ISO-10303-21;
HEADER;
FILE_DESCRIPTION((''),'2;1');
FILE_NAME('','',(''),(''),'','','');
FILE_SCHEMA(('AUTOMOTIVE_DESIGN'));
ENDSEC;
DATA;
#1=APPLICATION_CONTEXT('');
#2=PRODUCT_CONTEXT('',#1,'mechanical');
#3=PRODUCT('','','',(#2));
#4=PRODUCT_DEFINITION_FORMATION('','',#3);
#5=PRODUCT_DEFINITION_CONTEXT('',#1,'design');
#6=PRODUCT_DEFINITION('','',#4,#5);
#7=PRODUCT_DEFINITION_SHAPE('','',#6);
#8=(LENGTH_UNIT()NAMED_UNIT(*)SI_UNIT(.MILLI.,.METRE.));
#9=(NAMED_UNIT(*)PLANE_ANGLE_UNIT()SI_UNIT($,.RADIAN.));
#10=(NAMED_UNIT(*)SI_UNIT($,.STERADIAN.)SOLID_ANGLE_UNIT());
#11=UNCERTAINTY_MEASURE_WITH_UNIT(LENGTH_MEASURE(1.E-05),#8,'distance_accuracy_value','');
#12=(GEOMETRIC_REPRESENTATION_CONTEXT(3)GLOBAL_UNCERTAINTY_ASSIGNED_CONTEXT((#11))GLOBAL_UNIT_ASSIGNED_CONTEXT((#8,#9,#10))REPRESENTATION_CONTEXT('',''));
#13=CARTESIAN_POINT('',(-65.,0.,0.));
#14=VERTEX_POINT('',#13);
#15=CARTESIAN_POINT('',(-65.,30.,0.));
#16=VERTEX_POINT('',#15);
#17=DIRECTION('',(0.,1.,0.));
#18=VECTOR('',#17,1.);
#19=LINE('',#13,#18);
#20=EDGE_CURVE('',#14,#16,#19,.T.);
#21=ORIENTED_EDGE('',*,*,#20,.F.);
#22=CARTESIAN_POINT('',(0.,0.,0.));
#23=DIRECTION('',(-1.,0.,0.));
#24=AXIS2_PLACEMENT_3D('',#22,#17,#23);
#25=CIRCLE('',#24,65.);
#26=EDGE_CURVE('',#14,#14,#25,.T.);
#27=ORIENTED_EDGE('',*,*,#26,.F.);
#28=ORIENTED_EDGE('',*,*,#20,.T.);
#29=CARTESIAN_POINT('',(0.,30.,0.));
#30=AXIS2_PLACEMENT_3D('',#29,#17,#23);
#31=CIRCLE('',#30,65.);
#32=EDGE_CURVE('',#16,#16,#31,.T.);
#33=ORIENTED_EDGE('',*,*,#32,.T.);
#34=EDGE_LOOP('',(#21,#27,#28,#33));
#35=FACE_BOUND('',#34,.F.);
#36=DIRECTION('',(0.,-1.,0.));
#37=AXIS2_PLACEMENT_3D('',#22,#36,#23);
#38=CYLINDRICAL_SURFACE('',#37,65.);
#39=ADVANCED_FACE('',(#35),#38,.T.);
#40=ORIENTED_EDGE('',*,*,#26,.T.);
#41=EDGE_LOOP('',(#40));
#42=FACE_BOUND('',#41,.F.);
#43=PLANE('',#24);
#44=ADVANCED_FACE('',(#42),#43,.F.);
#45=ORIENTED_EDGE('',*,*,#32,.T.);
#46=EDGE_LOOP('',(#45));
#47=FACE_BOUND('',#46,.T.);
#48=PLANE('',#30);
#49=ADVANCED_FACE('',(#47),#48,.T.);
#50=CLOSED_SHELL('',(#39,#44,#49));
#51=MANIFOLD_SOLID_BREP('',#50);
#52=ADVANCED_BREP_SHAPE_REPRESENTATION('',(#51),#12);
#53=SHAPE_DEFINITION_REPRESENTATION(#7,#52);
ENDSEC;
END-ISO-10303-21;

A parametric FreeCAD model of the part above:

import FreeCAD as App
import Part
import Sketcher
from FreeCAD import Vector

doc = App.newDocument("Part")
params = doc.addObject("Spreadsheet::Sheet", "Params")
for row, (alias, value) in enumerate([
    ("sketch1_diameter", "130 mm"),
    ("pad1_length", "30 mm"),
], start=1):
    params.set(f"A{row}", alias)
    params.set(f"B{row}", "=" + value)
    params.setAlias(f"B{row}", alias)

body = doc.addObject("PartDesign::Body", "Body")

# Sketch on XZ plane
sketch1 = body.newObject("Sketcher::SketchObject", "Sketch")
sketch1.AttachmentSupport = (doc.getObject("XZ_Plane"), [""])
sketch1.MapMode = "FlatFace"
sketch1.addGeometry(Part.Circle(Vector(0, 0, 0), Vector(0, 0, 1), 65), False)
sketch1.addConstraint([
    Sketcher.Constraint("Coincident", 0, 3, -1, 1),
    Sketcher.Constraint("Diameter", 0, 130.0),
])
sketch1.setExpression("Constraints[1]", "Params.sketch1_diameter")
pad1 = body.newObject("PartDesign::Pad", "Pad")
pad1.Profile = sketch1
pad1.setExpression("Length", "Params.pad1_length")
pad1.Reversed = True

doc.recompute()
